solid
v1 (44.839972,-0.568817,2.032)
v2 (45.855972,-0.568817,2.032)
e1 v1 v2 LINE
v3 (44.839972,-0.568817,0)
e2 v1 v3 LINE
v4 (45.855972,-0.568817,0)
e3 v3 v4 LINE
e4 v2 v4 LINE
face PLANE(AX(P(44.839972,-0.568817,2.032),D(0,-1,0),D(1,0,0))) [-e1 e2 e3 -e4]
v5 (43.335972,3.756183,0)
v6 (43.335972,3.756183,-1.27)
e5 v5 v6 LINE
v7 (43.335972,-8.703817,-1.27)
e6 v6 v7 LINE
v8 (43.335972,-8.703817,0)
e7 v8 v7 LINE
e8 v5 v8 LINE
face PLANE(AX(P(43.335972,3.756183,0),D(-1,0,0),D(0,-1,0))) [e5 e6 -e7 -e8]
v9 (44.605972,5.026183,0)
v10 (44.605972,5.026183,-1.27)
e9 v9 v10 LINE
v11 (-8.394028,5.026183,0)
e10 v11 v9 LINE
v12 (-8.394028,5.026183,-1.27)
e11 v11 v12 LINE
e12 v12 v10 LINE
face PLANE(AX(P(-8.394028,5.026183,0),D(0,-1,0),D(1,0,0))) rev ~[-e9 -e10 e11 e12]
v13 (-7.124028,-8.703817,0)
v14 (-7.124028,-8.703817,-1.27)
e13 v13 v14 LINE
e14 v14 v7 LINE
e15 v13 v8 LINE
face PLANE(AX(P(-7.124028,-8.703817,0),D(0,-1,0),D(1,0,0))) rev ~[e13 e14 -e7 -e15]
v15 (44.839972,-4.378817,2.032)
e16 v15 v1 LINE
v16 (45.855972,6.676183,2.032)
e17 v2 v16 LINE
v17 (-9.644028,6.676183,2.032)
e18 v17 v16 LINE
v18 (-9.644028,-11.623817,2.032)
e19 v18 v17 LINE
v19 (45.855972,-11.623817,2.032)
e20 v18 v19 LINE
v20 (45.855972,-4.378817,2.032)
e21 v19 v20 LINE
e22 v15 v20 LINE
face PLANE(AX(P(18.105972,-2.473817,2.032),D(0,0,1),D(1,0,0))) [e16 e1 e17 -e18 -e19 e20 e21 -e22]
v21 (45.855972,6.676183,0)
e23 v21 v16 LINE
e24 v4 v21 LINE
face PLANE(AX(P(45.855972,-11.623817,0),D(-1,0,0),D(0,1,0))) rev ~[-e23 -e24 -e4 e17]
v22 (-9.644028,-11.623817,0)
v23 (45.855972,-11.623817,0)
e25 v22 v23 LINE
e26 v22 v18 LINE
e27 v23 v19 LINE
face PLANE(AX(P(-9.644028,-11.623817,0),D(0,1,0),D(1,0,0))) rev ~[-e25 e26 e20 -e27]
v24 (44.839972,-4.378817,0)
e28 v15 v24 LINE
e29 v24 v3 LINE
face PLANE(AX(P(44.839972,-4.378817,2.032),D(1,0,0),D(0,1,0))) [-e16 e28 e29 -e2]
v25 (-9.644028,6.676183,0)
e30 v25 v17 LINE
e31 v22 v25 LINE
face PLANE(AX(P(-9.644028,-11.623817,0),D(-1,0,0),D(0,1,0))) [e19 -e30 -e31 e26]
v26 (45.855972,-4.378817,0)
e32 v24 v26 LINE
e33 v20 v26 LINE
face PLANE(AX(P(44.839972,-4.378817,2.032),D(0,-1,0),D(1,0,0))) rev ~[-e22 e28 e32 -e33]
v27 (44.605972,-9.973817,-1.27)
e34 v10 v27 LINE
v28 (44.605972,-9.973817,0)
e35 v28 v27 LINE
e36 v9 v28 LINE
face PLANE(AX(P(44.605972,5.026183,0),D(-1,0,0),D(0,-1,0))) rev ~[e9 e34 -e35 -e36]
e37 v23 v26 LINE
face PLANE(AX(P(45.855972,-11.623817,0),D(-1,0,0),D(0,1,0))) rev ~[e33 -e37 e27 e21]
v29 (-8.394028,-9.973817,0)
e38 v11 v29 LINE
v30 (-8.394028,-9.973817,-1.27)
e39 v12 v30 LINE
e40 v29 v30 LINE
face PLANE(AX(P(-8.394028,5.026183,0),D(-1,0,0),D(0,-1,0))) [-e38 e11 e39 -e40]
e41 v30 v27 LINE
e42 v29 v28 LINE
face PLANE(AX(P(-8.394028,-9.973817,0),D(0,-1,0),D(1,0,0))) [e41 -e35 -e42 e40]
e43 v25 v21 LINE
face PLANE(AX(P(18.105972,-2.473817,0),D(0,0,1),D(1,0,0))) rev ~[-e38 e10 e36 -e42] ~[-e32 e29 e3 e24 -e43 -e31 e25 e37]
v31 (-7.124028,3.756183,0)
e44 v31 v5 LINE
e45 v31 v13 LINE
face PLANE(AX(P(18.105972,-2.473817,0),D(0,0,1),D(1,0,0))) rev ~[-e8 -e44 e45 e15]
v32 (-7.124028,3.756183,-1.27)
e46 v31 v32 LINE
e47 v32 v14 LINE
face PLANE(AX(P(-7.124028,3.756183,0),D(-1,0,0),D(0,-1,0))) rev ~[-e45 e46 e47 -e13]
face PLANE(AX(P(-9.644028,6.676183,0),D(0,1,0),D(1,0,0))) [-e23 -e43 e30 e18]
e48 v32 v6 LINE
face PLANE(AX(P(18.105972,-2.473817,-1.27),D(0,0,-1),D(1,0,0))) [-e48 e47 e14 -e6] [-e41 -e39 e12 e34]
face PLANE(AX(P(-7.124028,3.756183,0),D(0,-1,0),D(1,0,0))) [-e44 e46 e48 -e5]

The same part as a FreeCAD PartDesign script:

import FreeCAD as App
import Part
import Sketcher
from FreeCAD import Vector
Q = App.Units.Quantity

doc = App.newDocument("Part")
body = doc.addObject("PartDesign::Body", "Body")

# Sketch on XY plane
sketch1 = body.newObject("Sketcher::SketchObject", "Sketch")
sketch1.AttachmentSupport = (doc.getObject("XY_Plane"), [""])
sketch1.MapMode = "FlatFace"
sketch1.addGeometry([
    Part.LineSegment(Vector(-10, 7, 0), Vector(-10, -12, 0)),
    Part.LineSegment(Vector(-10, -12, 0), Vector(46, -12, 0)),
    Part.LineSegment(Vector(46, -12, 0), Vector(46, 7, 0)),
    Part.LineSegment(Vector(46, 7, 0), Vector(-10, 7, 0)),
], False)
sketch1.addConstraint([
    Sketcher.Constraint("Coincident", 0, 2, 1, 1),
    Sketcher.Constraint("Coincident", 1, 2, 2, 1),
    Sketcher.Constraint("Coincident", 2, 2, 3, 1),
    Sketcher.Constraint("Coincident", 3, 2, 0, 1),
    Sketcher.Constraint("Vertical", 0),
    Sketcher.Constraint("Horizontal", 1),
    Sketcher.Constraint("Vertical", 2),
    Sketcher.Constraint("Horizontal", 3),
    Sketcher.Constraint("DistanceX", 1, 1, 1, 2, 55.5),
    Sketcher.Constraint("DistanceY", 0, 2, 0, 1, 18.3),
    Sketcher.Constraint("DistanceX", 0, 2, -1, 1, 9.644028),
    Sketcher.Constraint("DistanceY", 0, 2, -1, 1, 11.623817),
])
pad1 = body.newObject("PartDesign::Pad", "Pad")
pad1.Profile = sketch1
pad1.Length = Q("0.08 in")

# Sketch on XY plane
sketch2 = body.newObject("Sketcher::SketchObject", "Sketch001")
sketch2.AttachmentSupport = (doc.getObject("XY_Plane"), [""])
sketch2.MapMode = "FlatFace"
sketch2.AttachmentOffset = App.Placement(Vector(0, 0, 0.08 * 25.4), App.Rotation())
sketch2.addGeometry([
    Part.LineSegment(Vector(44.8, -0.6, 0), Vector(44.8, -4.4, 0)),
    Part.LineSegment(Vector(44.8, -4.4, 0), Vector(45.9, -4.4, 0)),
    Part.LineSegment(Vector(45.9, -4.4, 0), Vector(45.9, -0.6, 0)),
    Part.LineSegment(Vector(45.9, -0.6, 0), Vector(44.8, -0.6, 0)),
], False)
sketch2.addConstraint([
    Sketcher.Constraint("Coincident", 0, 2, 1, 1),
    Sketcher.Constraint("Coincident", 1, 2, 2, 1),
    Sketcher.Constraint("Coincident", 2, 2, 3, 1),
    Sketcher.Constraint("Coincident", 3, 2, 0, 1),
    Sketcher.Constraint("Vertical", 0),
    Sketcher.Constraint("Horizontal", 1),
    Sketcher.Constraint("Vertical", 2),
    Sketcher.Constraint("Horizontal", 3),
    Sketcher.Constraint("DistanceX", 1, 1, 1, 2, Q("0.04 in")),
    Sketcher.Constraint("DistanceY", 0, 2, 0, 1, Q("0.15 in")),
    Sketcher.Constraint("DistanceX", -1, 1, 0, 2, 44.839972),
    Sketcher.Constraint("DistanceY", 0, 2, -1, 1, 4.378817),
])
pocket1 = body.newObject("PartDesign::Pocket", "Pocket")
pocket1.Profile = sketch2
pocket1.Length = Q("0.09 in")

# Sketch on XY plane
sketch3 = body.newObject("Sketcher::SketchObject", "Sketch002")
sketch3.AttachmentSupport = (doc.getObject("XY_Plane"), [""])
sketch3.MapMode = "FlatFace"
sketch3.addGeometry([
    Part.LineSegment(Vector(-8, -10, 0), Vector(-8, 5, 0)),  # 0
    Part.LineSegment(Vector(-8, 5, 0), Vector(45, 5, 0)),  # 1
    Part.LineSegment(Vector(45, 5, 0), Vector(45, -10, 0)),  # 2
    Part.LineSegment(Vector(45, -10, 0), Vector(-8, -10, 0)),  # 3
    Part.LineSegment(Vector(43, 4, 0), Vector(-7, 4, 0)),  # 4
    Part.LineSegment(Vector(-7, 4, 0), Vector(-7, -9, 0)),  # 5
    Part.LineSegment(Vector(-7, -9, 0), Vector(43, -9, 0)),  # 6
    Part.LineSegment(Vector(43, -9, 0), Vector(43, 4, 0)),  # 7
], False)
sketch3.addConstraint([
    Sketcher.Constraint("Coincident", 0, 2, 1, 1),
    Sketcher.Constraint("Coincident", 1, 2, 2, 1),
    Sketcher.Constraint("Coincident", 2, 2, 3, 1),
    Sketcher.Constraint("Coincident", 3, 2, 0, 1),
    Sketcher.Constraint("Coincident", 4, 2, 5, 1),
    Sketcher.Constraint("Coincident", 5, 2, 6, 1),
    Sketcher.Constraint("Coincident", 6, 2, 7, 1),
    Sketcher.Constraint("Coincident", 7, 2, 4, 1),
    Sketcher.Constraint("Vertical", 0),
    Sketcher.Constraint("Horizontal", 1),
    Sketcher.Constraint("Vertical", 2),
    Sketcher.Constraint("Horizontal", 3),
    Sketcher.Constraint("Horizontal", 4),
    Sketcher.Constraint("Vertical", 5),
    Sketcher.Constraint("Horizontal", 6),
    Sketcher.Constraint("Vertical", 7),
    Sketcher.Constraint("DistanceX", 0, 2, 4, 2, Q("0.05 in")),
    Sketcher.Constraint("DistanceY", 4, 2, 0, 2, Q("0.05 in")),
    Sketcher.Constraint("DistanceY", 3, 2, 5, 2, Q("0.05 in")),
    Sketcher.Constraint("DistanceX", 6, 2, 2, 2, Q("0.05 in")),
    Sketcher.Constraint("DistanceX", 1, 1, 1, 2, 53.0),
    Sketcher.Constraint("DistanceY", 0, 1, 0, 2, 15.0),
    Sketcher.Constraint("DistanceX", -1, 1, 6, 2, 43.335972),
    Sketcher.Constraint("DistanceY", -1, 1, 0, 2, 5.026183),
])
pad2 = body.newObject("PartDesign::Pad", "Pad001")
pad2.Profile = sketch3
pad2.Length = Q("0.05 in")
pad2.Reversed = True

doc.recompute()
